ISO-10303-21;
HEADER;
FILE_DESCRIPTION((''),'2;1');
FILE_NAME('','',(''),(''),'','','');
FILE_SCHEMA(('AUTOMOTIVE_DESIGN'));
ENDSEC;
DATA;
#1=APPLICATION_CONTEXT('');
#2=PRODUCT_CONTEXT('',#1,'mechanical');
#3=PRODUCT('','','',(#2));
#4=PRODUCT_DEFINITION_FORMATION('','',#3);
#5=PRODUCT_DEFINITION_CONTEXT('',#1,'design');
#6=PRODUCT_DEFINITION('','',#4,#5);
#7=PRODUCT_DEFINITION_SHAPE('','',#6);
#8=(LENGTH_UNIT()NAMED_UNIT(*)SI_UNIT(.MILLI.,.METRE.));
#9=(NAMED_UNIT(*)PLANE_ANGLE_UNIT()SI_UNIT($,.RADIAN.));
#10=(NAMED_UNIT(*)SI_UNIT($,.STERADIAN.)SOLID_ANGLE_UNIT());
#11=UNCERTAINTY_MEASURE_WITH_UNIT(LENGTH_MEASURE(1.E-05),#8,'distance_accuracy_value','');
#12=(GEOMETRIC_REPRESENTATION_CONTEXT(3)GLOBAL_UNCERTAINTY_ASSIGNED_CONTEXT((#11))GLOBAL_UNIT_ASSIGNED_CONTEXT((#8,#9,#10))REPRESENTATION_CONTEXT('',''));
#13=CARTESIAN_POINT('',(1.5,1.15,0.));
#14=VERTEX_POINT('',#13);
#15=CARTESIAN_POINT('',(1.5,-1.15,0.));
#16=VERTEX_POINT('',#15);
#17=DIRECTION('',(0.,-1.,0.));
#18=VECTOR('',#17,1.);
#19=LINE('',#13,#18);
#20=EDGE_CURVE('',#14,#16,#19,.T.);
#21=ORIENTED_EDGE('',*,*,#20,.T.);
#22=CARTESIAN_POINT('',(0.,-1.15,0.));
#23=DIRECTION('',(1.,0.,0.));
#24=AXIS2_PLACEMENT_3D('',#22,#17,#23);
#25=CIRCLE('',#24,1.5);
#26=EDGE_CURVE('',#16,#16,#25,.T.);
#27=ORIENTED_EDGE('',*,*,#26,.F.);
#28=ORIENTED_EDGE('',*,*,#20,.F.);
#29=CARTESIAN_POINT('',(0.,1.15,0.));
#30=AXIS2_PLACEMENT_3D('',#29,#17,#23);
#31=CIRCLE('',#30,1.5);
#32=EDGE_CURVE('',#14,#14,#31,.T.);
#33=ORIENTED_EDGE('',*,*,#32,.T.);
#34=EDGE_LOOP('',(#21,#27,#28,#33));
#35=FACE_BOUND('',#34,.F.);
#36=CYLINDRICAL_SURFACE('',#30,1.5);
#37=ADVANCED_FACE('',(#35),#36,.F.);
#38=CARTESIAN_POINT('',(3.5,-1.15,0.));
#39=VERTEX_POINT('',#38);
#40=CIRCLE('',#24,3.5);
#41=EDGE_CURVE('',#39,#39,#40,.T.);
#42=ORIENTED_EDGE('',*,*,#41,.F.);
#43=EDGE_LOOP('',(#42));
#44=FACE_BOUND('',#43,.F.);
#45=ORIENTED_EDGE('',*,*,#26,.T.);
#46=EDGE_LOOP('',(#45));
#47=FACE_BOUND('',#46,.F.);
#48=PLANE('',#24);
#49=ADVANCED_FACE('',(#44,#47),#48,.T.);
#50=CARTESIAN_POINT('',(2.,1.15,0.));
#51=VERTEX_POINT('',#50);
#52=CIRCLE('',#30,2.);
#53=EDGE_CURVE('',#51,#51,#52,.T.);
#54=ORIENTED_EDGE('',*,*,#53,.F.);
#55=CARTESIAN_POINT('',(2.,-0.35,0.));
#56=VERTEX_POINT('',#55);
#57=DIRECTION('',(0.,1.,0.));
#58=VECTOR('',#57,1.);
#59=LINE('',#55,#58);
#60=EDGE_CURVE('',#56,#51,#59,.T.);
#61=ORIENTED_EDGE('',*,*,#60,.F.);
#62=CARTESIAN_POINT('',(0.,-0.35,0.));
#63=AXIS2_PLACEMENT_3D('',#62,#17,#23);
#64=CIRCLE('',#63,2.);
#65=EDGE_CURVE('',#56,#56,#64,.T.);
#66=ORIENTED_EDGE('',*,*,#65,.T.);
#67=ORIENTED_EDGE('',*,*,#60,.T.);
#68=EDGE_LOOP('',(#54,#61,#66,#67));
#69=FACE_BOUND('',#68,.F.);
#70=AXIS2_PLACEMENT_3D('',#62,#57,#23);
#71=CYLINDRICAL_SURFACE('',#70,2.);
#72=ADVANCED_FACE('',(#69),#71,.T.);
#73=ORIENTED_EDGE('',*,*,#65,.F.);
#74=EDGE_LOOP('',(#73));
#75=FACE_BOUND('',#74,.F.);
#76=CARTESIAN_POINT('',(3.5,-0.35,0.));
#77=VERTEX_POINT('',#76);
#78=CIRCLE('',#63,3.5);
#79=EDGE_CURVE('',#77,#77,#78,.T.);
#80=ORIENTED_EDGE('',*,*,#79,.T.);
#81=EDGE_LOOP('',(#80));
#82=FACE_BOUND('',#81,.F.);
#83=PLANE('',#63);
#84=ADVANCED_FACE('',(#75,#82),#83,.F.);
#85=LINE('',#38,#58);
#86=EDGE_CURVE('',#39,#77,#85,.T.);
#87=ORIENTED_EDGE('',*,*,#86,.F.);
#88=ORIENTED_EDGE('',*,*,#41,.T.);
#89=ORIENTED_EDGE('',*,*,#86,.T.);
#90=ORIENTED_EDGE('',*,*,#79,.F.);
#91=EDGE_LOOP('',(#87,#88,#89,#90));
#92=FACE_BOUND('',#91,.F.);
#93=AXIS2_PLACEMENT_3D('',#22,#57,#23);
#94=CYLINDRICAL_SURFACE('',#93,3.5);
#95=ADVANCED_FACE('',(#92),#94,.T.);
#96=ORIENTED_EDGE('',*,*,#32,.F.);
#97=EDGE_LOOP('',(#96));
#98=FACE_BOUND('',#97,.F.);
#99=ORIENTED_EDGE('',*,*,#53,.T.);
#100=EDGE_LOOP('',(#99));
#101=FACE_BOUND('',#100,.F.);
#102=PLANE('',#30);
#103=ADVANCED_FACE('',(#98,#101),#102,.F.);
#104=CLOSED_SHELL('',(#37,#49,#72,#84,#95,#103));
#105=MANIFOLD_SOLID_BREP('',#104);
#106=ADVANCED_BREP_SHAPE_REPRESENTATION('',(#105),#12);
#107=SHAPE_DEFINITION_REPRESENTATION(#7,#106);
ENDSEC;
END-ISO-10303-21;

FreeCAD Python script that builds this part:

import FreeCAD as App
import Part
import Sketcher

V = App.Vector


def add_polygon(sketch, points):
    """Adds a closed chain of lines whose ends are joined by coincident constraints."""
    first, n = sketch.GeometryCount, len(points)
    for a, b in zip(points, points[1:] + points[:1]):
        sketch.addGeometry(Part.LineSegment(App.Vector(*a, 0), App.Vector(*b, 0)), False)
    for i in range(n):
        sketch.addConstraint(Sketcher.Constraint("Coincident", first + i, 2, first + (i + 1) % n, 1))

doc = App.newDocument("Part")
body = doc.addObject("PartDesign::Body", "Body")

sketch1 = body.newObject("Sketcher::SketchObject", "Sketch")
sketch1.AttachmentSupport = (doc.getObject("XY_Plane"), [""])
sketch1.MapMode = "FlatFace"
add_polygon(sketch1, [(2, 1.1), (1.5, 1.1), (1.5, -1.1), (3.5, -1.1), (3.5, -0.3), (2, -0.3)])
sketch1.addConstraint(Sketcher.Constraint("Horizontal", 0))
sketch1.addConstraint(Sketcher.Constraint("Vertical", 1))
sketch1.addConstraint(Sketcher.Constraint("Horizontal", 2))
sketch1.addConstraint(Sketcher.Constraint("Vertical", 3))
sketch1.addConstraint(Sketcher.Constraint("Horizontal", 4))
sketch1.addConstraint(Sketcher.Constraint("Vertical", 5))
sketch1.addConstraint(Sketcher.Constraint("Equal", 4, 5))
sketch1.addConstraint(Sketcher.Constraint("DistanceX", 4, 2, 4, 1, 1.5))
sketch1.addConstraint(Sketcher.Constraint("DistanceY", 3, 1, 3, 2, 0.8))
sketch1.addConstraint(Sketcher.Constraint("DistanceX", -1, 1, 0, 2, 1.5))
sketch1.addConstraint(Sketcher.Constraint("DistanceX", 2, 1, 2, 2, 2.0))
sketch1.addConstraint(Sketcher.Constraint("DistanceY", -1, 1, 0, 2, 1.15))
revolution = body.newObject("PartDesign::Revolution", "Revolution")
revolution.Profile = sketch1
revolution.ReferenceAxis = (sketch1, ["V_Axis"])
revolution.Angle = 360

doc.recompute()
